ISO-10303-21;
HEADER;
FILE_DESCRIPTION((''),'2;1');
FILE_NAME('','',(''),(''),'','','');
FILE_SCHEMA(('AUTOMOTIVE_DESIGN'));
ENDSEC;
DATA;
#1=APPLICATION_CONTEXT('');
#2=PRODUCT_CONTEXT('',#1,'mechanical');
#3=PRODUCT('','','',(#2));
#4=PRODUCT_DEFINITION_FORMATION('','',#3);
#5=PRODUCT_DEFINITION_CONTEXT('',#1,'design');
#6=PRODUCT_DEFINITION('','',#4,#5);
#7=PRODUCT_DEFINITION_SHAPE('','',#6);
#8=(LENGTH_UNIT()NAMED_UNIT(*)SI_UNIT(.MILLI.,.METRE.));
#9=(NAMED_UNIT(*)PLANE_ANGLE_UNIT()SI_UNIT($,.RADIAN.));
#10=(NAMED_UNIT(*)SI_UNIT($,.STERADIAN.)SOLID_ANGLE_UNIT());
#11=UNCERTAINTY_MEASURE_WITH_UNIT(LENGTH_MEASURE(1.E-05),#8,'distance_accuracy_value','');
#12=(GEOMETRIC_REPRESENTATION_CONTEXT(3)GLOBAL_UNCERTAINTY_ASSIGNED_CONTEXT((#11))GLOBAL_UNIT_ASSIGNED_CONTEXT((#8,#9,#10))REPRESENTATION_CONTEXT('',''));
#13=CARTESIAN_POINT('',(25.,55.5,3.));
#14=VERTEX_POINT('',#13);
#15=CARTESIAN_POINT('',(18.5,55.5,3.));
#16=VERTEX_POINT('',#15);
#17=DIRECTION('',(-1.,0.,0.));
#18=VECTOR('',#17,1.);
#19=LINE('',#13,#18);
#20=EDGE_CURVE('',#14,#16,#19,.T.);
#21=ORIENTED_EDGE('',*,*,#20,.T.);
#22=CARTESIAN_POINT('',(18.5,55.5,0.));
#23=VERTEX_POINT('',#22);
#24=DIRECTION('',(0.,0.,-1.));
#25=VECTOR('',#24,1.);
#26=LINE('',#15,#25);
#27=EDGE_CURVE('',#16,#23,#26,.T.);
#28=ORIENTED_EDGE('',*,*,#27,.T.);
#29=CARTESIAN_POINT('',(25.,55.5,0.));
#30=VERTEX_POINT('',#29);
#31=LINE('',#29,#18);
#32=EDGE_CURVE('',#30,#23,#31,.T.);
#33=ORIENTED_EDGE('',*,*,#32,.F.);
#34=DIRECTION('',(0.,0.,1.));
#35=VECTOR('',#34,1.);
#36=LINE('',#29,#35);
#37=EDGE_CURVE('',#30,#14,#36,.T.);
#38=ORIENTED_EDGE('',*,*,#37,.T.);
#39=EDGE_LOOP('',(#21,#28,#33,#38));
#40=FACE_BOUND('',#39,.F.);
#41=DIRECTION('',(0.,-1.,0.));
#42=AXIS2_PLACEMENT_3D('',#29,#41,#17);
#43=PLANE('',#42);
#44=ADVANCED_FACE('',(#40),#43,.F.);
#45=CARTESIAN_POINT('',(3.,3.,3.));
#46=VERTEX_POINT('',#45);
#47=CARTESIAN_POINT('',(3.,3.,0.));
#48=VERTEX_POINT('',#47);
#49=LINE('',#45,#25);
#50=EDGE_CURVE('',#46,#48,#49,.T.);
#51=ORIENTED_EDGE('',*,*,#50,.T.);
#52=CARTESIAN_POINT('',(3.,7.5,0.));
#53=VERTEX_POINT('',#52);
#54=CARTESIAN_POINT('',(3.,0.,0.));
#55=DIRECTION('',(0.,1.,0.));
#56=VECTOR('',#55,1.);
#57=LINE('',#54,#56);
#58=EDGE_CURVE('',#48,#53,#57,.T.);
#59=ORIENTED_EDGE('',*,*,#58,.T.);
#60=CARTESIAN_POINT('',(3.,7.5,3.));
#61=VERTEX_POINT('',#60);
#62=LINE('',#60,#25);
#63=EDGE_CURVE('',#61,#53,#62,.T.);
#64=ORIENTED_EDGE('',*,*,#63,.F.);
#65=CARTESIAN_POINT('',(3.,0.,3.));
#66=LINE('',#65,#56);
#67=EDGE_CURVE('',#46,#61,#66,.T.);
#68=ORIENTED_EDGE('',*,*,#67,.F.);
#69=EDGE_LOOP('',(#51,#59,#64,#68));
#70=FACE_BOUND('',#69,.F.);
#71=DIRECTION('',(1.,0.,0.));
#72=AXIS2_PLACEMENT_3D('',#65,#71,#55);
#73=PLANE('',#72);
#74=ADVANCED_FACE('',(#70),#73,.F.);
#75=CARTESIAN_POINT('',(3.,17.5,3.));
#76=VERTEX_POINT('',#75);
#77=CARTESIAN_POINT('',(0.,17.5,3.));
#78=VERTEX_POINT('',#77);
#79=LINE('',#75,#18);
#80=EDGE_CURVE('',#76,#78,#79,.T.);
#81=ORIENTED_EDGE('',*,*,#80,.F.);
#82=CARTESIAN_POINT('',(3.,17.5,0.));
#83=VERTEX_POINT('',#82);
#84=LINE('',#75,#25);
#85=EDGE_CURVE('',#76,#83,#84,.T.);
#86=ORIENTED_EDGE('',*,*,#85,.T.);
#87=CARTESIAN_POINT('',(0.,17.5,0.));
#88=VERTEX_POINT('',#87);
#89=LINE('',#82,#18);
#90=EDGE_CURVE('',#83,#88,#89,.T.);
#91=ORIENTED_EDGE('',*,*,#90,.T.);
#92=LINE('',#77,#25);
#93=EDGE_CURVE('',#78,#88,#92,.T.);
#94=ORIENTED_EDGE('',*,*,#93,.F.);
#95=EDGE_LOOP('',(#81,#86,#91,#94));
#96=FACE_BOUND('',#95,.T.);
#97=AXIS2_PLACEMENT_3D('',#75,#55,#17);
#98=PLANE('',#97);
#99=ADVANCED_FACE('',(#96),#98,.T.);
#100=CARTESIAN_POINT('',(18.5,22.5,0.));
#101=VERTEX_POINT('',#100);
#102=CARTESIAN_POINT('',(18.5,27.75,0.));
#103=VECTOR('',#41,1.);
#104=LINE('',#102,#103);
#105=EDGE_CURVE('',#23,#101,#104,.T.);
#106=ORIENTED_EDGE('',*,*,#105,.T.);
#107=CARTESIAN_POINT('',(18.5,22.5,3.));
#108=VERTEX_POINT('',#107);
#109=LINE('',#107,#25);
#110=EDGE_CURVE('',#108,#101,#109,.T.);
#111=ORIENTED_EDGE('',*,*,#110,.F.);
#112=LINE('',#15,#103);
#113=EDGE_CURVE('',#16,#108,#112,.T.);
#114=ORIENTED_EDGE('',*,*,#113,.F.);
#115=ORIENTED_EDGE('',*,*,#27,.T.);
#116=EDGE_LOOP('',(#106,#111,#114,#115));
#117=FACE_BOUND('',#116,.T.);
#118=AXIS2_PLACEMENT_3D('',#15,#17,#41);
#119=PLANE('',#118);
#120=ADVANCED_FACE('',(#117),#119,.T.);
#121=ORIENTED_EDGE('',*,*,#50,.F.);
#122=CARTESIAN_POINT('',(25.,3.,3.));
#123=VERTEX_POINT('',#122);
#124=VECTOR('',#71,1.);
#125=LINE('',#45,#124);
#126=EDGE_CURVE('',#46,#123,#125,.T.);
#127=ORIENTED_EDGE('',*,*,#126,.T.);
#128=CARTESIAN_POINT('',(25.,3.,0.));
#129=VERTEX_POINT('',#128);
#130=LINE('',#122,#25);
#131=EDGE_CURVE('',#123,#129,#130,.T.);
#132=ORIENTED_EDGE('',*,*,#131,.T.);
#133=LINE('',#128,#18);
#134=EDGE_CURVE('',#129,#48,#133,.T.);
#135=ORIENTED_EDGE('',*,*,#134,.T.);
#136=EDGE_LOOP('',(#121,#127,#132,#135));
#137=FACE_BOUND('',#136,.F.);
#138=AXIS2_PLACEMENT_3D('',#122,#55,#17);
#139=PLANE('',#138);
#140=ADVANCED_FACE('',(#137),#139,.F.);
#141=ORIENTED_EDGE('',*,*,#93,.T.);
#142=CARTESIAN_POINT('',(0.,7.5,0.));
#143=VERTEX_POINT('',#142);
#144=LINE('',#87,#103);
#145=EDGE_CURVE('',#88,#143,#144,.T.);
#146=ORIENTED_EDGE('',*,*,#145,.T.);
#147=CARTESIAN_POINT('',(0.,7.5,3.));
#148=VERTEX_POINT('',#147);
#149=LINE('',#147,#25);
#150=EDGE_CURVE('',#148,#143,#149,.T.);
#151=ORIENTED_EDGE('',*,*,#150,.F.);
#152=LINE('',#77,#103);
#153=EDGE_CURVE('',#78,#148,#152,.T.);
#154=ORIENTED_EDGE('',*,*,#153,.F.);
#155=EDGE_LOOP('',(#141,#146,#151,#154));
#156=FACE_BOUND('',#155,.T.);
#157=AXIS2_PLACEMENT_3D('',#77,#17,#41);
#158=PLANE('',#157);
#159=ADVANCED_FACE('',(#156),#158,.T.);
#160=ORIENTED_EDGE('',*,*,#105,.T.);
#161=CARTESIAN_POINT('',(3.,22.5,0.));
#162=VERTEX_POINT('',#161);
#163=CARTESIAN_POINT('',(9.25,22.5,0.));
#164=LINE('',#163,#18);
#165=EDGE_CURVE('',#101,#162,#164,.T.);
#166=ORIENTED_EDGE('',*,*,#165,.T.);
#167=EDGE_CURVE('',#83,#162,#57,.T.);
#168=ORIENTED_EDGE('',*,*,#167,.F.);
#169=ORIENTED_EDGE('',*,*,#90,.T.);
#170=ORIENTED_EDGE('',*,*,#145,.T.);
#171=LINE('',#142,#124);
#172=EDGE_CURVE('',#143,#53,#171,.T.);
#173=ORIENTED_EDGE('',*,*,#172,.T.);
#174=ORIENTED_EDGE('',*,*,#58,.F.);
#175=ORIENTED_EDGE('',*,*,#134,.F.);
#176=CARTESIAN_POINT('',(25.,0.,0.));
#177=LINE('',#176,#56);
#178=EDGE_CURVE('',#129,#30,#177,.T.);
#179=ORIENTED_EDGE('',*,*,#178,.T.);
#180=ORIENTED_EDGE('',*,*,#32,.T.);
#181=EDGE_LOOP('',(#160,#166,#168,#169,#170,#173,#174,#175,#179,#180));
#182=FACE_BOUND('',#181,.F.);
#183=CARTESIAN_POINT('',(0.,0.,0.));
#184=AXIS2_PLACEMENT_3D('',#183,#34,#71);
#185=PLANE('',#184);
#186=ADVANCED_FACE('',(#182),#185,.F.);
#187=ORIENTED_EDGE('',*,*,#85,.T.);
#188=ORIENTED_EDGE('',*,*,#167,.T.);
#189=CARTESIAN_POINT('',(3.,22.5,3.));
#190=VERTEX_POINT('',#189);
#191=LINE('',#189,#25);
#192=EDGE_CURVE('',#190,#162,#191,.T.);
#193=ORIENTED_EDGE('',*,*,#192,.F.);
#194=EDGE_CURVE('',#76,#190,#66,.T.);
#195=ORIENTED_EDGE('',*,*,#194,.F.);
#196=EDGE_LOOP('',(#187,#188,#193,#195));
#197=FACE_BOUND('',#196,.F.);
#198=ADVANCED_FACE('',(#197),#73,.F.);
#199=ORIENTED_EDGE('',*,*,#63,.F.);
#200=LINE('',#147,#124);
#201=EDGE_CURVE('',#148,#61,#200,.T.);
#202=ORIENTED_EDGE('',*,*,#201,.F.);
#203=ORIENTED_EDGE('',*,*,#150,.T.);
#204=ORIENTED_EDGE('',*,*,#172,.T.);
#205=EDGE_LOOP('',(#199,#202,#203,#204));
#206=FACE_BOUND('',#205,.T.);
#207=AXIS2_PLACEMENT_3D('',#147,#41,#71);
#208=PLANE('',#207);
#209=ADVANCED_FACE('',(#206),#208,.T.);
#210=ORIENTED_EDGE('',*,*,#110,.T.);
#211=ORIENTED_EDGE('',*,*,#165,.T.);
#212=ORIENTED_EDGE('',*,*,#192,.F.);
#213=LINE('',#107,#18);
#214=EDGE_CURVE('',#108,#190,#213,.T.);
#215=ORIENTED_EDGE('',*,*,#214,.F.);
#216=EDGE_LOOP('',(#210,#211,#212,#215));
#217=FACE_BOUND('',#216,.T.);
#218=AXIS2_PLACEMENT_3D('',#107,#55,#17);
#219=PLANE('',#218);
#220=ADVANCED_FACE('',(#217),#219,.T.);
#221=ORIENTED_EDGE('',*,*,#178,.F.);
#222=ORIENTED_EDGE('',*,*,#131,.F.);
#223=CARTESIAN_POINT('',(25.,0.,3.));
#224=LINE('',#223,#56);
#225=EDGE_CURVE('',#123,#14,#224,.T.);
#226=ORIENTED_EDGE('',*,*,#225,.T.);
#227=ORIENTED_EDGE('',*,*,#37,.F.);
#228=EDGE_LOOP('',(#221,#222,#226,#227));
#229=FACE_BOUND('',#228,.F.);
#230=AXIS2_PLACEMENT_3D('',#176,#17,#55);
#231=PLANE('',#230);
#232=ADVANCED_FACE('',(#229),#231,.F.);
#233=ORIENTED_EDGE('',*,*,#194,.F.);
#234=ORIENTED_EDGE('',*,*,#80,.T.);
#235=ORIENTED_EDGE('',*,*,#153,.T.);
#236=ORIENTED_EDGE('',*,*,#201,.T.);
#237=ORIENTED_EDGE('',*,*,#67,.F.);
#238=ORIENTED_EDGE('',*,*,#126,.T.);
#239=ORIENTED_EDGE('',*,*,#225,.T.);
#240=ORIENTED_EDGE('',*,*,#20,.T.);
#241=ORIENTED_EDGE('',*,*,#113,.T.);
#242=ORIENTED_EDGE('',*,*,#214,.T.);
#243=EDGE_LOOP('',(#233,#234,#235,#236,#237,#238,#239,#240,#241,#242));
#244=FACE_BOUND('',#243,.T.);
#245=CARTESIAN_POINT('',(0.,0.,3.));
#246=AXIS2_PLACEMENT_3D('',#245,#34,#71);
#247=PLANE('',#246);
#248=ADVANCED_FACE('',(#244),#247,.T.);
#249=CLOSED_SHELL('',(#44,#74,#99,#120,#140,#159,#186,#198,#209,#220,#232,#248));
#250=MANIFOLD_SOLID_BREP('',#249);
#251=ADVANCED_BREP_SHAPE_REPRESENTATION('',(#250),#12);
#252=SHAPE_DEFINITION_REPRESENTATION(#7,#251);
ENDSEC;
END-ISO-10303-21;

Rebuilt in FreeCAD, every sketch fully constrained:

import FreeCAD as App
import Part
import Sketcher

V = App.Vector
Q = App.Units.Quantity


def add_polygon(sketch, points):
    """Adds a closed chain of lines whose ends are joined by coincident constraints."""
    first, n = sketch.GeometryCount, len(points)
    for a, b in zip(points, points[1:] + points[:1]):
        sketch.addGeometry(Part.LineSegment(App.Vector(*a, 0), App.Vector(*b, 0)), False)
    for i in range(n):
        sketch.addConstraint(Sketcher.Constraint("Coincident", first + i, 2, first + (i + 1) % n, 1))

doc = App.newDocument("Part")
params = doc.addObject("Spreadsheet::Sheet", "Params")
for row, (alias, value) in enumerate([
    ("sketch1_width", "25 mm"),
    ("sketch1_height", "55.5 mm"),
    ("pad1_length", "3 mm"),
    ("sketch2_width", "3 mm"),
    ("sketch2_height", "55.5 mm"),
    ("sketch3_height", "33 mm"),
    ("sketch3_width", "15.5 mm"),
    ("sketch4_width", "5 mm"),
    ("sketch4_height", "3 mm"),
    ("sketch4_width2", "7 mm"),
    ("sketch5_width", "10 mm"),
    ("sketch5_height", "3 mm"),
    ("sketch6_width", "3 mm"),
    ("sketch6_height", "10 mm"),
    ("pad2_length", "3 mm"),
], start=1):
    params.set(f"A{row}", alias)
    params.set(f"B{row}", "=" + value)
    params.setAlias(f"B{row}", alias)

body = doc.addObject("PartDesign::Body", "Body")

# Sketch on XY plane
sketch1 = body.newObject("Sketcher::SketchObject", "Sketch")
sketch1.AttachmentSupport = (doc.getObject("XY_Plane"), [""])
sketch1.MapMode = "FlatFace"
add_polygon(sketch1, [(0, 55.5), (0, 0), (25, 0), (25, 55.5)])  # lines 0-3
sketch1.addConstraint(Sketcher.Constraint("Vertical", 0))
sketch1.addConstraint(Sketcher.Constraint("Horizontal", 1))
sketch1.addConstraint(Sketcher.Constraint("Vertical", 2))
sketch1.addConstraint(Sketcher.Constraint("Horizontal", 3))
sketch1.addConstraint(Sketcher.Constraint("Coincident", 0, 2, -1, 1))
sketch1.addConstraint(Sketcher.Constraint("DistanceX", 1, 1, 1, 2, Q("25 mm")))
sketch1.addConstraint(Sketcher.Constraint("DistanceY", 0, 2, 0, 1, Q("55.5 mm")))
sketch1.setExpression("Constraints[9]", "Params.sketch1_width")
sketch1.setExpression("Constraints[10]", "Params.sketch1_height")
pad1 = body.newObject("PartDesign::Pad", "Pad")
pad1.Profile = sketch1
pad1.setExpression("Length", "Params.pad1_length")

# Sketch on XY plane
sketch2 = body.newObject("Sketcher::SketchObject", "Sketch001")
sketch2.AttachmentSupport = (doc.getObject("XY_Plane"), [""])
sketch2.MapMode = "FlatFace"
sketch2.AttachmentOffset = App.Placement(V(0, 0, 3), App.Rotation())
add_polygon(sketch2, [(3, 55.5), (0, 55.5), (0, 0), (3, 0)])  # lines 0-3
sketch2.addConstraint(Sketcher.Constraint("Horizontal", 0))
sketch2.addConstraint(Sketcher.Constraint("Vertical", 1))
sketch2.addConstraint(Sketcher.Constraint("Horizontal", 2))
sketch2.addConstraint(Sketcher.Constraint("Vertical", 3))
sketch2.addConstraint(Sketcher.Constraint("Coincident", 1, 2, -1, 1))
sketch2.addConstraint(Sketcher.Constraint("DistanceX", 0, 2, 0, 1, Q("3 mm")))
sketch2.addConstraint(Sketcher.Constraint("DistanceY", 1, 2, 1, 1, Q("55.5 mm")))
sketch2.setExpression("Constraints[9]", "Params.sketch2_width")
sketch2.setExpression("Constraints[10]", "Params.sketch2_height")
pocket1 = body.newObject("PartDesign::Pocket", "Pocket")
pocket1.Profile = sketch2
pocket1.Type = "ThroughAll"

# Sketch on XY plane
sketch3 = body.newObject("Sketcher::SketchObject", "Sketch002")
sketch3.AttachmentSupport = (doc.getObject("XY_Plane"), [""])
sketch3.MapMode = "FlatFace"
sketch3.AttachmentOffset = App.Placement(V(0, 0, 3), App.Rotation())
add_polygon(sketch3, [(18.5, 22.5), (18.5, 55.5), (3, 55.5), (3, 22.5)])  # lines 0-3
sketch3.addConstraint(Sketcher.Constraint("Vertical", 0))
sketch3.addConstraint(Sketcher.Constraint("Horizontal", 1))
sketch3.addConstraint(Sketcher.Constraint("Vertical", 2))
sketch3.addConstraint(Sketcher.Constraint("Horizontal", 3))
sketch3.addConstraint(Sketcher.Constraint("DistanceY", 0, 1, 0, 2, Q("33 mm")))
sketch3.addConstraint(Sketcher.Constraint("DistanceX", 1, 2, 1, 1, Q("15.5 mm")))
sketch3.addConstraint(Sketcher.Constraint("DistanceX", -1, 1, 1, 2, Q("3 mm")))
sketch3.addConstraint(Sketcher.Constraint("DistanceY", -1, 1, 0, 2, Q("55.5 mm")))
sketch3.setExpression("Constraints[8]", "Params.sketch3_height")
sketch3.setExpression("Constraints[9]", "Params.sketch3_width")
pocket2 = body.newObject("PartDesign::Pocket", "Pocket001")
pocket2.Profile = sketch3
pocket2.Type = "ThroughAll"

# Sketch on XY plane
sketch4 = body.newObject("Sketcher::SketchObject", "Sketch003")
sketch4.AttachmentSupport = (doc.getObject("XY_Plane"), [""])
sketch4.MapMode = "FlatFace"
sketch4.AttachmentOffset = App.Placement(V(0, 0, 3), App.Rotation())
add_polygon(sketch4, [(3, 3), (3, 0), (8, 0), (8, 3)])  # lines 0-3
add_polygon(sketch4, [(18, 3), (18, 0), (25, 0), (25, 3)])  # lines 4-7
sketch4.addConstraint(Sketcher.Constraint("Vertical", 0))
sketch4.addConstraint(Sketcher.Constraint("Horizontal", 1))
sketch4.addConstraint(Sketcher.Constraint("Vertical", 2))
sketch4.addConstraint(Sketcher.Constraint("Horizontal", 3))
sketch4.addConstraint(Sketcher.Constraint("Vertical", 4))
sketch4.addConstraint(Sketcher.Constraint("Horizontal", 5))
sketch4.addConstraint(Sketcher.Constraint("Vertical", 6))
sketch4.addConstraint(Sketcher.Constraint("Horizontal", 7))
sketch4.addConstraint(Sketcher.Constraint("PointOnObject", 0, 2, -1))
sketch4.addConstraint(Sketcher.Constraint("PointOnObject", 4, 2, -1))
sketch4.addConstraint(Sketcher.Constraint("Horizontal", 3, 2, 6, 2))
sketch4.addConstraint(Sketcher.Constraint("DistanceX", 1, 1, 1, 2, Q("5 mm")))
sketch4.addConstraint(Sketcher.Constraint("DistanceY", 0, 2, 0, 1, Q("3 mm")))
sketch4.addConstraint(Sketcher.Constraint("DistanceX", -1, 1, 0, 2, Q("3 mm")))
sketch4.addConstraint(Sketcher.Constraint("DistanceX", 1, 2, 4, 2, Q("10 mm")))
sketch4.addConstraint(Sketcher.Constraint("DistanceX", 5, 1, 5, 2, Q("7 mm")))
sketch4.setExpression("Constraints[19]", "Params.sketch4_width")
sketch4.setExpression("Constraints[20]", "Params.sketch4_height")
sketch4.setExpression("Constraints[23]", "Params.sketch4_width2")
pocket3 = body.newObject("PartDesign::Pocket", "Pocket002")
pocket3.Profile = sketch4
pocket3.Type = "ThroughAll"

# Sketch on XY plane
sketch5 = body.newObject("Sketcher::SketchObject", "Sketch004")
sketch5.AttachmentSupport = (doc.getObject("XY_Plane"), [""])
sketch5.MapMode = "FlatFace"
sketch5.AttachmentOffset = App.Placement(V(0, 0, 3), App.Rotation())
add_polygon(sketch5, [(8, 3), (8, 0), (18, 0), (18, 3)])  # lines 0-3
sketch5.addConstraint(Sketcher.Constraint("Vertical", 0))
sketch5.addConstraint(Sketcher.Constraint("Horizontal", 1))
sketch5.addConstraint(Sketcher.Constraint("Vertical", 2))
sketch5.addConstraint(Sketcher.Constraint("Horizontal", 3))
sketch5.addConstraint(Sketcher.Constraint("PointOnObject", 0, 2, -1))
sketch5.addConstraint(Sketcher.Constraint("DistanceX", 1, 1, 1, 2, Q("10 mm")))
sketch5.addConstraint(Sketcher.Constraint("DistanceY", 0, 2, 0, 1, Q("3 mm")))
sketch5.addConstraint(Sketcher.Constraint("DistanceX", -1, 1, 0, 2, Q("8 mm")))
sketch5.setExpression("Constraints[9]", "Params.sketch5_width")
sketch5.setExpression("Constraints[10]", "Params.sketch5_height")
pocket4 = body.newObject("PartDesign::Pocket", "Pocket003")
pocket4.Profile = sketch5
pocket4.Type = "ThroughAll"

# Sketch on XY plane
sketch6 = body.newObject("Sketcher::SketchObject", "Sketch005")
sketch6.AttachmentSupport = (doc.getObject("XY_Plane"), [""])
sketch6.MapMode = "FlatFace"
sketch6.AttachmentOffset = App.Placement(V(0, 0, 3), App.Rotation())
add_polygon(sketch6, [(3, 7.5), (3, 17.5), (0, 17.5), (0, 7.5)])  # lines 0-3
sketch6.addConstraint(Sketcher.Constraint("Vertical", 0))
sketch6.addConstraint(Sketcher.Constraint("Horizontal", 1))
sketch6.addConstraint(Sketcher.Constraint("Vertical", 2))
sketch6.addConstraint(Sketcher.Constraint("Horizontal", 3))
sketch6.addConstraint(Sketcher.Constraint("PointOnObject", 1, 2, -2))
sketch6.addConstraint(Sketcher.Constraint("DistanceX", 1, 2, 1, 1, Q("3 mm")))
sketch6.addConstraint(Sketcher.Constraint("DistanceY", 0, 1, 0, 2, Q("10 mm")))
sketch6.addConstraint(Sketcher.Constraint("DistanceY", -1, 1, 0, 2, Q("17.5 mm")))
sketch6.setExpression("Constraints[9]", "Params.sketch6_width")
sketch6.setExpression("Constraints[10]", "Params.sketch6_height")
pad2 = body.newObject("PartDesign::Pad", "Pad001")
pad2.Profile = sketch6
pad2.setExpression("Length", "Params.pad2_length")
pad2.Reversed = True

doc.recompute()
